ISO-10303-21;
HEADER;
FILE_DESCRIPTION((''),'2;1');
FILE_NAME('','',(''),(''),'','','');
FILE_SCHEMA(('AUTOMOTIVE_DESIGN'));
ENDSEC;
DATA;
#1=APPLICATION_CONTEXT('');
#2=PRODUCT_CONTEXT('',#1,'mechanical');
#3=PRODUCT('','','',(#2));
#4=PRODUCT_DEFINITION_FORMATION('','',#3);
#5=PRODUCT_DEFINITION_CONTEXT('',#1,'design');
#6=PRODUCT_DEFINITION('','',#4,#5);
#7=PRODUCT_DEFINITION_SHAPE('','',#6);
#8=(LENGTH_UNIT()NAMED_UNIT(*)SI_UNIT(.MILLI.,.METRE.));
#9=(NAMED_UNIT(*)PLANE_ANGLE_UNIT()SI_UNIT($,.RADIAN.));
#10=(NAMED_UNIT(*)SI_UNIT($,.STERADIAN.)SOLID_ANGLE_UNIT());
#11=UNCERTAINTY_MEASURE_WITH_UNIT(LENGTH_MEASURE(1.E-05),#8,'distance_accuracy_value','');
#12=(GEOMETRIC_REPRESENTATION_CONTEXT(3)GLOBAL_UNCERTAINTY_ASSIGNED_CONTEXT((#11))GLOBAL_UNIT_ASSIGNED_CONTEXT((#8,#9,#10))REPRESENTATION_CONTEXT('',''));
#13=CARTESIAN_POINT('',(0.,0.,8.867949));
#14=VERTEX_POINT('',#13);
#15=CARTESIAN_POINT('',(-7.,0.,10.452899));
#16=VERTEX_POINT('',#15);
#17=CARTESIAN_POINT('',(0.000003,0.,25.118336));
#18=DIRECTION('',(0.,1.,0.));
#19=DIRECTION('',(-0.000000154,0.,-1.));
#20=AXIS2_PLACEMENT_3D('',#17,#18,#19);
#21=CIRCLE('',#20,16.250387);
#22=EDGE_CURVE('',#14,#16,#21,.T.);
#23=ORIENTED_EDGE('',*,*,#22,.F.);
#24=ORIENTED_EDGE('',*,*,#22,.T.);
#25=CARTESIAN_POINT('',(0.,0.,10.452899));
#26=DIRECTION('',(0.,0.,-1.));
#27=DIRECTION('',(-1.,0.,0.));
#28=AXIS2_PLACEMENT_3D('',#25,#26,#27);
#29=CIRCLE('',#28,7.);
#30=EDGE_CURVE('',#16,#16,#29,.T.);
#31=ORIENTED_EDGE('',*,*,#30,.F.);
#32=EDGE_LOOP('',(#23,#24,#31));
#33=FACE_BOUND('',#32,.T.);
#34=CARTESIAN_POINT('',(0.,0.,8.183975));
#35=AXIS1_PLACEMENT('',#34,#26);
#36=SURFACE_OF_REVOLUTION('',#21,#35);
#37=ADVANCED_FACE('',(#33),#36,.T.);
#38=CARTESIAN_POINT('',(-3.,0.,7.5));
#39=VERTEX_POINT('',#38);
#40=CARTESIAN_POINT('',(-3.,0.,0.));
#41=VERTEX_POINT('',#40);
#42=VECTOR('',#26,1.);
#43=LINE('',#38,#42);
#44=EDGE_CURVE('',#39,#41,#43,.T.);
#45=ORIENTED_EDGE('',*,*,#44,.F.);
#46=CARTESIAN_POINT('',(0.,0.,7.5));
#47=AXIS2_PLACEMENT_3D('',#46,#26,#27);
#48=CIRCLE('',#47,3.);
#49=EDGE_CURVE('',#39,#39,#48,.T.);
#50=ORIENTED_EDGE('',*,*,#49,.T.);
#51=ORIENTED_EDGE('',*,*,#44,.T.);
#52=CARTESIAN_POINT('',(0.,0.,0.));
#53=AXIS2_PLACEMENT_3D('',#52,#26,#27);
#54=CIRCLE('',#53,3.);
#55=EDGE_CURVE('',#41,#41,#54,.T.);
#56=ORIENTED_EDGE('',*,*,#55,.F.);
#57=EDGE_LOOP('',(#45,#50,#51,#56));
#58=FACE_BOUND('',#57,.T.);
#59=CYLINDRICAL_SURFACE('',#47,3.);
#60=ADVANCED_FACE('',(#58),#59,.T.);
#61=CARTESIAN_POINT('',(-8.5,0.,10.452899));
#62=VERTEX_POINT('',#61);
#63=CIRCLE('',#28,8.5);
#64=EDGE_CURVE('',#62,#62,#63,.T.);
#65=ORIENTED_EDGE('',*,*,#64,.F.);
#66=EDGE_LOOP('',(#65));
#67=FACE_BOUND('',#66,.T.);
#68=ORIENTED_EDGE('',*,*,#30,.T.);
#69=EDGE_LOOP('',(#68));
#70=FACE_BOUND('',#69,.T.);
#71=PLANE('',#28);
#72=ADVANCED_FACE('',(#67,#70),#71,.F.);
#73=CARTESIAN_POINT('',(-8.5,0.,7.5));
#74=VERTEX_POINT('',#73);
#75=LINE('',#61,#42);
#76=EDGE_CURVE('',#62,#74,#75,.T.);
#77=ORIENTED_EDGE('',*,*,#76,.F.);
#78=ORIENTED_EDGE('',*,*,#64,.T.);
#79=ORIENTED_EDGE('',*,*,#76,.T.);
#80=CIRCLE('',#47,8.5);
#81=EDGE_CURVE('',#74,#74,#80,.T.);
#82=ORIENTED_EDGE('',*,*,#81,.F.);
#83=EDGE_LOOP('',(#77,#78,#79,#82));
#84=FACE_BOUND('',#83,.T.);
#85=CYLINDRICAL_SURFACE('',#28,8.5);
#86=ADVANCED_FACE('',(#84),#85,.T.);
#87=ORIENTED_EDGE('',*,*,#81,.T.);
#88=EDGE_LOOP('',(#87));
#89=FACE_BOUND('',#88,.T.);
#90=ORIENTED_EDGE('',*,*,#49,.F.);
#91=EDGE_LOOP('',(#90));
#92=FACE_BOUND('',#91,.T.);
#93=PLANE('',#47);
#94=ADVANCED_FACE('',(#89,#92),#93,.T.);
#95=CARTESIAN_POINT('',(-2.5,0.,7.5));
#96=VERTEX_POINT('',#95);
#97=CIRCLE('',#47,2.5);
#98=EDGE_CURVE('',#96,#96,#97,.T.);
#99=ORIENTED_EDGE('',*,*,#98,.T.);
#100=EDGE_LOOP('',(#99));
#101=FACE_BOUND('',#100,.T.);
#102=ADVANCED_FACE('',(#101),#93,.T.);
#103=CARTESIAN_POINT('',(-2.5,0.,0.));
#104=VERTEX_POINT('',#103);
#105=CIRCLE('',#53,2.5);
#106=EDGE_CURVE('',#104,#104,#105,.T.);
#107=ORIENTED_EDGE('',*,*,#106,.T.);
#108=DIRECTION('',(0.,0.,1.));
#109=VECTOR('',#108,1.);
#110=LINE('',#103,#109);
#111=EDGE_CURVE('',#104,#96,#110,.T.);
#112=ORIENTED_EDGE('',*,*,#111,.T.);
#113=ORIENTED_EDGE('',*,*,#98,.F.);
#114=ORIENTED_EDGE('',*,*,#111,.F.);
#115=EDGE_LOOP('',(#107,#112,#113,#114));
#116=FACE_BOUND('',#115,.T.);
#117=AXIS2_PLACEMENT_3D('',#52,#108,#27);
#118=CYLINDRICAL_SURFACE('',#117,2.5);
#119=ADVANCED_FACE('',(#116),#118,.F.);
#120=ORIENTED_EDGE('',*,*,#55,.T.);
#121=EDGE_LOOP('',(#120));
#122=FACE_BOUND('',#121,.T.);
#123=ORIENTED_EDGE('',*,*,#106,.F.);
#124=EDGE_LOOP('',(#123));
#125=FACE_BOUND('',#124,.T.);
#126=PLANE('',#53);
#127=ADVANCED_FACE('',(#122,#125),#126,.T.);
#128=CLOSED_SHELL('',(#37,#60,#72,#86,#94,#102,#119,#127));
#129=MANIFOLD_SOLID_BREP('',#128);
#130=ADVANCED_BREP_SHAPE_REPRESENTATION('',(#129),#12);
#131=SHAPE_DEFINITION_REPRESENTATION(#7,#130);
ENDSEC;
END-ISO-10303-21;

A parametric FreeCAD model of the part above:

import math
import FreeCAD as App
import Part
import Sketcher
from FreeCAD import Vector

doc = App.newDocument("Part")
body = doc.addObject("PartDesign::Body", "Body")

# Sketch on XZ plane
sketch1 = body.newObject("Sketcher::SketchObject", "Sketch")
sketch1.AttachmentSupport = (doc.getObject("XZ_Plane"), [""])
sketch1.MapMode = "FlatFace"
sketch1.addGeometry([
    Part.LineSegment(Vector(-3, 7.5, 0), Vector(-3, 0, 0)),  # 0
    Part.LineSegment(Vector(-3, 0, 0), Vector(-2.5, 0, 0)),  # 1
    Part.LineSegment(Vector(-2.5, 0, 0), Vector(-2.5, 7.5, 0)),  # 2
    Part.LineSegment(Vector(-2.5, 7.5, 0), Vector(0, 7.5, 0)),  # 3
    Part.LineSegment(Vector(0, 7.5, 0), Vector(0, 8.9, 0)),  # 4
    Part.ArcOfCircle(Part.Circle(Vector(0, 25.1, 0), Vector(0, 0, 1), 16.3), math.radians(-116), math.radians(-90)),  # 5
    Part.LineSegment(Vector(-7, 10.5, 0), Vector(-8.5, 10.5, 0)),  # 6
    Part.LineSegment(Vector(-8.5, 10.5, 0), Vector(-8.5, 7.5, 0)),  # 7
    Part.LineSegment(Vector(-8.5, 7.5, 0), Vector(-3, 7.5, 0)),  # 8
], False)
sketch1.addConstraint([
    Sketcher.Constraint("Coincident", 0, 2, 1, 1),
    Sketcher.Constraint("Coincident", 1, 2, 2, 1),
    Sketcher.Constraint("Coincident", 2, 2, 3, 1),
    Sketcher.Constraint("Coincident", 3, 2, 4, 1),
    Sketcher.Constraint("Coincident", 4, 2, 5, 2),
    Sketcher.Constraint("Coincident", 5, 1, 6, 1),
    Sketcher.Constraint("Coincident", 6, 2, 7, 1),
    Sketcher.Constraint("Coincident", 7, 2, 8, 1),
    Sketcher.Constraint("Coincident", 8, 2, 0, 1),
    Sketcher.Constraint("Vertical", 0),
    Sketcher.Constraint("Horizontal", 1),
    Sketcher.Constraint("Vertical", 2),
    Sketcher.Constraint("Horizontal", 3),
    Sketcher.Constraint("Vertical", 4),
    Sketcher.Constraint("Horizontal", 6),
    Sketcher.Constraint("Vertical", 7),
    Sketcher.Constraint("Horizontal", 8),
    Sketcher.Constraint("PointOnObject", 0, 2, -1),
    Sketcher.Constraint("PointOnObject", 3, 2, -2),
    Sketcher.Constraint("Horizontal", 3, 2, 7, 2),
    Sketcher.Constraint("DistanceX", 1, 1, 1, 2, 0.5),
    Sketcher.Constraint("DistanceX", 3, 1, 3, 2, 2.5),
    Sketcher.Constraint("DistanceX", 6, 2, 6, 1, 1.5),
    Sketcher.Constraint("DistanceX", 8, 1, 8, 2, 5.5),
    Sketcher.Constraint("DistanceY", 0, 2, 0, 1, 7.5),
    Sketcher.Constraint("DistanceY", 7, 2, 7, 1, 2.952899),
    Sketcher.Constraint("Radius", 5, 16.250387),
    Sketcher.Constraint("DistanceY", 4, 1, 4, 2, 1.367949),
])
revolution = body.newObject("PartDesign::Revolution", "Revolution")
revolution.Profile = sketch1
revolution.ReferenceAxis = (sketch1, ["V_Axis"])
revolution.Angle = 360

doc.recompute()
